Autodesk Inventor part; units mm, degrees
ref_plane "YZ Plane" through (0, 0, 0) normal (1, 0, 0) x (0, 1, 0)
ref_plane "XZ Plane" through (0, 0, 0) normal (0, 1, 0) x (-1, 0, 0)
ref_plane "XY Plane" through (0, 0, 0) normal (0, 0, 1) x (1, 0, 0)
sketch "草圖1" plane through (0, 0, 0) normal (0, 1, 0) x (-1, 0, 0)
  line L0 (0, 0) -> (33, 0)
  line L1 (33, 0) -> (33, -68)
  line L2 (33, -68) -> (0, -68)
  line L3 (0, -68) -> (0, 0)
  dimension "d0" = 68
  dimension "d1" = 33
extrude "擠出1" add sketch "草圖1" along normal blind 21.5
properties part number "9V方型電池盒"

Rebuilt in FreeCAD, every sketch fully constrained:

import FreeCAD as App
import Part
import Sketcher


def add_polygon(sketch, points):
    """Adds a closed chain of lines whose ends are joined by coincident constraints."""
    first, n = sketch.GeometryCount, len(points)
    for a, b in zip(points, points[1:] + points[:1]):
        sketch.addGeometry(Part.LineSegment(App.Vector(*a, 0), App.Vector(*b, 0)), False)
    for i in range(n):
        sketch.addConstraint(Sketcher.Constraint("Coincident", first + i, 2, first + (i + 1) % n, 1))

doc = App.newDocument("Part")
body = doc.addObject("PartDesign::Body", "Body")

sketch1 = doc.addObject("Sketcher::SketchObject", "Sketch")
body.addObject(sketch1)
sketch1.AttachmentSupport = (doc.XZ_Plane, [""])
sketch1.MapMode = "FlatFace"
add_polygon(sketch1, [(-33, 0), (0, 0), (0, -68), (-33, -68)])
sketch1.addConstraint([
    Sketcher.Constraint("Horizontal", 0),
    Sketcher.Constraint("Vertical", 1),
    Sketcher.Constraint("Horizontal", 2),
    Sketcher.Constraint("Vertical", 3),
    Sketcher.Constraint("Coincident", 0, 2, -1, 1),
    Sketcher.Constraint("DistanceX", 0, 1, 0, 2, 33.0),
    Sketcher.Constraint("DistanceY", 1, 2, 1, 1, 68.0),
])
pad1 = doc.addObject("PartDesign::Pad", "Pad")
body.addObject(pad1)
pad1.Profile = sketch1
pad1.Length = 21.5
pad1.Reversed = True

doc.recompute()
